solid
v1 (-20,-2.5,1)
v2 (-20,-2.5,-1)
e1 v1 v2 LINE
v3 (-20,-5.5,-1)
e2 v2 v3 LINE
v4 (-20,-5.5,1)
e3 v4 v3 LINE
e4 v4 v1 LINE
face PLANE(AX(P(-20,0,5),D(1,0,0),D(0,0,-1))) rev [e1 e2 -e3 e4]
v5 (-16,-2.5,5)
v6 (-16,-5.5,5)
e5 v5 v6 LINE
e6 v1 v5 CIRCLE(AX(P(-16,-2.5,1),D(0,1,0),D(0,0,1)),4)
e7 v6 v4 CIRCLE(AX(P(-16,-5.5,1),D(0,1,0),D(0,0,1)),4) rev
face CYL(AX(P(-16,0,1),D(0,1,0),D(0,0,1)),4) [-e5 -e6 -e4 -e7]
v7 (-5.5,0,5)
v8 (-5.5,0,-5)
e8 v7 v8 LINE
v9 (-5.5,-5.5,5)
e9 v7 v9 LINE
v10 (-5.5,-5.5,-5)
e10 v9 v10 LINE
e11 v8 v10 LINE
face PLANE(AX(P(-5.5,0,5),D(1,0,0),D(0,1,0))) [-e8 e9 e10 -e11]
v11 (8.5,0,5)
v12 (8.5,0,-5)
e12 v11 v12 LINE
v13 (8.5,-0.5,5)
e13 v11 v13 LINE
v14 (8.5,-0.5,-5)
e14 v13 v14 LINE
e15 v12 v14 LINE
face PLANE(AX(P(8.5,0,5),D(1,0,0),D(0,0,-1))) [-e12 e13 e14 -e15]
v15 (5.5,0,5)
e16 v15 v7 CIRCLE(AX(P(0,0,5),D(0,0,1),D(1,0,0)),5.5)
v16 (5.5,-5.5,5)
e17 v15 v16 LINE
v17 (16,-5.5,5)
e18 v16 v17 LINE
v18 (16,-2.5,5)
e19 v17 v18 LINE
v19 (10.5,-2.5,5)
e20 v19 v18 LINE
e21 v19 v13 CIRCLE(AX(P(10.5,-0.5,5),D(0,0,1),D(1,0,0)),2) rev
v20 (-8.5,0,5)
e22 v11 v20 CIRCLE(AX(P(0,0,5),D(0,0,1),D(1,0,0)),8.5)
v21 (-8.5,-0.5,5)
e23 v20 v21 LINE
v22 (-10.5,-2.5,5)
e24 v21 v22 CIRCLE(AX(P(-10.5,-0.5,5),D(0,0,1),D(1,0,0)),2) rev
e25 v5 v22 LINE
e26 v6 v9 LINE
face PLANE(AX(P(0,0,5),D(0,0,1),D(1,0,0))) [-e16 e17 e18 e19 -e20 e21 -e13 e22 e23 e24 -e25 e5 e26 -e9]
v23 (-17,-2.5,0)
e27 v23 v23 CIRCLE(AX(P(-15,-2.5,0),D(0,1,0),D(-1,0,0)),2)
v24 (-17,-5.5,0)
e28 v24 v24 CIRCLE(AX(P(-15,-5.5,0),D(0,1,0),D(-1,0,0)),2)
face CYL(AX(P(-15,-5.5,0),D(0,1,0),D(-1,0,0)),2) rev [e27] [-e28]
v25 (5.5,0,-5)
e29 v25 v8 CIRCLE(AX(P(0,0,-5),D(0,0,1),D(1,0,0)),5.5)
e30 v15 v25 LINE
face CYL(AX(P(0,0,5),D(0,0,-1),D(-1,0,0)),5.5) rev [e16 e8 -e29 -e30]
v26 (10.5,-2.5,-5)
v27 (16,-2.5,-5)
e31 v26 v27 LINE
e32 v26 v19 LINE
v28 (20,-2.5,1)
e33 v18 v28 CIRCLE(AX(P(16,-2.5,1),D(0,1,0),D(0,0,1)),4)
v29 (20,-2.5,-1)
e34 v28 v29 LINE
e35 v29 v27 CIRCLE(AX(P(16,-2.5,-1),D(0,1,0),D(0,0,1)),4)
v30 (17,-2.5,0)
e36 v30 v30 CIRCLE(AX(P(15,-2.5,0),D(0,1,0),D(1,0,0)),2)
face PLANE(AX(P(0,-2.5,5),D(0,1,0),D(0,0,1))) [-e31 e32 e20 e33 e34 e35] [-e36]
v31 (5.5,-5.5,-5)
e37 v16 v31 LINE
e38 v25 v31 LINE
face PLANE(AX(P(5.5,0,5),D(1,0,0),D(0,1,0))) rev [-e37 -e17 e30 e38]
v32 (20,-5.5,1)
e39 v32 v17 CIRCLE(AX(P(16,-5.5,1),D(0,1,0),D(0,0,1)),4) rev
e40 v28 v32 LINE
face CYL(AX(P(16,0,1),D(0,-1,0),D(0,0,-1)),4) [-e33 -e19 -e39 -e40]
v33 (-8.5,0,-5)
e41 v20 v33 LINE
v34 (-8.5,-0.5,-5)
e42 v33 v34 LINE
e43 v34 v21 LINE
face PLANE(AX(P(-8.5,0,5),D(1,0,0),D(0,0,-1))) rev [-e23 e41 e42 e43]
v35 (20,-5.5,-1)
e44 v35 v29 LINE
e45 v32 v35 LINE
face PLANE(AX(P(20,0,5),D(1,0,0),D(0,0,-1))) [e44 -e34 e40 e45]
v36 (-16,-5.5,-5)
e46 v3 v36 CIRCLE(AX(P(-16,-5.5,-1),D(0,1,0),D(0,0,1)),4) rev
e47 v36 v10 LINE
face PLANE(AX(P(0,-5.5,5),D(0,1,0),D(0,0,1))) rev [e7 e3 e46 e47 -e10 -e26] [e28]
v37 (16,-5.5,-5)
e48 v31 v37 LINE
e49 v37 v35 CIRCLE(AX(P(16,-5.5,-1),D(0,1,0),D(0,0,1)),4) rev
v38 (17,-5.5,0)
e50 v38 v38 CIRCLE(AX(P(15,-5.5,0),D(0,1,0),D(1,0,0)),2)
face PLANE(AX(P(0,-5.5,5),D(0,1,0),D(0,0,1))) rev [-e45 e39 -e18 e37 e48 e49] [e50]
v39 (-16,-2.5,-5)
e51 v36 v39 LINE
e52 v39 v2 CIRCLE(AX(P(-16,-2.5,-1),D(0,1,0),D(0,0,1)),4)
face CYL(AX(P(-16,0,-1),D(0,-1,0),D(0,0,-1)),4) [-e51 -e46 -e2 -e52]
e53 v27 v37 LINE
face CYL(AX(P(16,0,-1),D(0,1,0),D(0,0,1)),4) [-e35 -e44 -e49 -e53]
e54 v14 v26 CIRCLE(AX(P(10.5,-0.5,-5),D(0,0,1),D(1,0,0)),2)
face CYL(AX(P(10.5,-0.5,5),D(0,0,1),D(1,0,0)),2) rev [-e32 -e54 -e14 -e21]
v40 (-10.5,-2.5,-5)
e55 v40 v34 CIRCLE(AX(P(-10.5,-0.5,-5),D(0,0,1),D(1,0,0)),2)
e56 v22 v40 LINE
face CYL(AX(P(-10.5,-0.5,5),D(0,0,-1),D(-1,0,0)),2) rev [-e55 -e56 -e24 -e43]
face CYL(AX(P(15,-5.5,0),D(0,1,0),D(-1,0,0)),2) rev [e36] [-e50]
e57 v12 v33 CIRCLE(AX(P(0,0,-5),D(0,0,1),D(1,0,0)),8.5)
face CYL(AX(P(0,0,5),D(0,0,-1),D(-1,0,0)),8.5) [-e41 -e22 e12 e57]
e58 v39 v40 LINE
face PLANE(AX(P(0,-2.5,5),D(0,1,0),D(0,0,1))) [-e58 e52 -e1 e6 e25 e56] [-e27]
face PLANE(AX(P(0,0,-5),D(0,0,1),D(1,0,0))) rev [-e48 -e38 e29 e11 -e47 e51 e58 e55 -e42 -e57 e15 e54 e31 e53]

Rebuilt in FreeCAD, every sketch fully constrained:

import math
import FreeCAD as App
import Part
import Sketcher

V = App.Vector
Q = App.Units.Quantity


def edges_at(feature, points):
    """Names of the edges that pass closest to the given points."""
    edges = feature.Shape.Edges
    near = lambda p: min(range(len(edges)), key=lambda i: edges[i].distToShape(Part.Vertex(*p))[0])
    return sorted({f"Edge{near(p) + 1}" for p in points})

doc = App.newDocument("Part")
params = doc.addObject("Spreadsheet::Sheet", "Params")
for row, (alias, value) in enumerate([
    ("sketch1_radius", "5.5 mm"),
    ("sketch1_radius2", "8.5 mm"),
    ("sketch1_height", "3 mm"),
    ("sketch1_width", "14.5 mm"),
    ("sketch1_height2", "5.5 mm"),
    ("pad1_length", "10 mm"),
    ("sketch2_diameter", "4 mm"),
    ("fillet_radius", "4 mm"),
    ("fillet2_radius", "2 mm"),
], start=1):
    params.set(f"A{row}", alias)
    params.set(f"B{row}", "=" + value)
    params.setAlias(f"B{row}", alias)

body = doc.addObject("PartDesign::Body", "Body")

sketch1 = doc.addObject("Sketcher::SketchObject", "Sketch")
body.addObject(sketch1)
sketch1.AttachmentSupport = (doc.XY_Plane, [""])
sketch1.MapMode = "FlatFace"
sketch1.addGeometry([
    Part.ArcOfCircle(Part.Circle(V(0, 0, 0), V(0, 0, 1), 5.5), math.radians(0), math.radians(180)),
    Part.LineSegment(V(5.5, 0, 0), V(5.5, -5.5, 0)),
    Part.LineSegment(V(5.5, -5.5, 0), V(20, -5.5, 0)),
    Part.LineSegment(V(20, -5.5, 0), V(20, -2.5, 0)),
    Part.LineSegment(V(20, -2.5, 0), V(8.5, -2.5, 0)),
    Part.LineSegment(V(8.5, -2.5, 0), V(8.5, 0, 0)),
    Part.ArcOfCircle(Part.Circle(V(0, 0, 0), V(0, 0, 1), 8.5), math.radians(0), math.radians(180)),
    Part.LineSegment(V(-8.5, 0, 0), V(-8.5, -2.5, 0)),
    Part.LineSegment(V(-8.5, -2.5, 0), V(-20, -2.5, 0)),
    Part.LineSegment(V(-20, -2.5, 0), V(-20, -5.5, 0)),
    Part.LineSegment(V(-20, -5.5, 0), V(-5.5, -5.5, 0)),
    Part.LineSegment(V(-5.5, -5.5, 0), V(-5.5, 0, 0)),
], False)
sketch1.addConstraint([
    Sketcher.Constraint("Tangent", 0, 1, 1, 1),
    Sketcher.Constraint("Coincident", 1, 2, 2, 1),
    Sketcher.Constraint("Coincident", 2, 2, 3, 1),
    Sketcher.Constraint("Coincident", 3, 2, 4, 1),
    Sketcher.Constraint("Coincident", 4, 2, 5, 1),
    Sketcher.Constraint("Tangent", 5, 2, 6, 1),
    Sketcher.Constraint("Tangent", 6, 2, 7, 1),
    Sketcher.Constraint("Coincident", 7, 2, 8, 1),
    Sketcher.Constraint("Coincident", 8, 2, 9, 1),
    Sketcher.Constraint("Coincident", 9, 2, 10, 1),
    Sketcher.Constraint("Coincident", 10, 2, 11, 1),
    Sketcher.Constraint("Tangent", 11, 2, 0, 2),
    Sketcher.Constraint("Vertical", 1),
    Sketcher.Constraint("Horizontal", 2),
    Sketcher.Constraint("Vertical", 3),
    Sketcher.Constraint("Horizontal", 4),
    Sketcher.Constraint("Vertical", 5),
    Sketcher.Constraint("Vertical", 7),
    Sketcher.Constraint("Horizontal", 8),
    Sketcher.Constraint("Vertical", 9),
    Sketcher.Constraint("Horizontal", 10),
    Sketcher.Constraint("Vertical", 11),
    Sketcher.Constraint("Coincident", 0, 3, -1, 1),
    Sketcher.Constraint("Coincident", 6, 3, -1, 1),
    Sketcher.Constraint("Symmetric", 3, 2, 8, 2, -2),
    Sketcher.Constraint("Horizontal", 2, 2, 9, 2),
    Sketcher.Constraint("Radius", 0, Q("5.5 mm")),
    Sketcher.Constraint("Radius", 6, Q("8.5 mm")),
    Sketcher.Constraint("DistanceY", 3, 1, 3, 2, Q("3 mm")),
    Sketcher.Constraint("DistanceX", 2, 1, 2, 2, Q("14.5 mm")),
    Sketcher.Constraint("DistanceY", 1, 2, 1, 1, Q("5.5 mm")),
])
sketch1.setExpression("Constraints[26]", "Params.sketch1_radius")
sketch1.setExpression("Constraints[27]", "Params.sketch1_radius2")
sketch1.setExpression("Constraints[28]", "Params.sketch1_height")
sketch1.setExpression("Constraints[29]", "Params.sketch1_width")
sketch1.setExpression("Constraints[30]", "Params.sketch1_height2")
pad1 = doc.addObject("PartDesign::Pad", "Pad")
body.addObject(pad1)
pad1.Profile = sketch1
pad1.setExpression("Length", "Params.pad1_length")
pad1.Midplane = True

sketch2 = doc.addObject("Sketcher::SketchObject", "Sketch001")
body.addObject(sketch2)
sketch2.AttachmentSupport = (doc.XZ_Plane, [""])
sketch2.MapMode = "FlatFace"
sketch2.AttachmentOffset = App.Placement(V(0, 0, 2.5), App.Rotation())
sketch2.addGeometry([
    Part.Circle(V(-15, 0, 0), V(0, 0, 1), 2),
    Part.Circle(V(15, 0, 0), V(0, 0, 1), 2),
], False)
sketch2.addConstraint([
    Sketcher.Constraint("Equal", 0, 1),
    Sketcher.Constraint("Symmetric", 0, 3, 1, 3, -1, 1),
    Sketcher.Constraint("PointOnObject", 0, 3, -1),
    Sketcher.Constraint("Diameter", 0, Q("4 mm")),
    Sketcher.Constraint("DistanceX", 0, 3, -1, 1, Q("15 mm")),
])
sketch2.setExpression("Constraints[3]", "Params.sketch2_diameter")
pocket1 = doc.addObject("PartDesign::Pocket", "Pocket")
body.addObject(pocket1)
pocket1.Profile = sketch2
pocket1.Type = "ThroughAll"
pocket1.Reversed = True
doc.recompute()

fillet = doc.addObject("PartDesign::Fillet", "Fillet")
body.addObject(fillet)
fillet.Base = (pocket1, edges_at(pocket1, [
    (20, -4, -5),
    (-20, -4, -5),
    (-20, -4, 5),
    (20, -4, 5),
]))
fillet.setExpression("Radius", "Params.fillet_radius")
doc.recompute()

fillet2 = doc.addObject("PartDesign::Fillet", "Fillet001")
body.addObject(fillet2)
fillet2.Base = (fillet, edges_at(fillet, [(-8.5, -2.5, 0), (8.5, -2.5, 0)]))
fillet2.setExpression("Radius", "Params.fillet2_radius")

doc.recompute()
